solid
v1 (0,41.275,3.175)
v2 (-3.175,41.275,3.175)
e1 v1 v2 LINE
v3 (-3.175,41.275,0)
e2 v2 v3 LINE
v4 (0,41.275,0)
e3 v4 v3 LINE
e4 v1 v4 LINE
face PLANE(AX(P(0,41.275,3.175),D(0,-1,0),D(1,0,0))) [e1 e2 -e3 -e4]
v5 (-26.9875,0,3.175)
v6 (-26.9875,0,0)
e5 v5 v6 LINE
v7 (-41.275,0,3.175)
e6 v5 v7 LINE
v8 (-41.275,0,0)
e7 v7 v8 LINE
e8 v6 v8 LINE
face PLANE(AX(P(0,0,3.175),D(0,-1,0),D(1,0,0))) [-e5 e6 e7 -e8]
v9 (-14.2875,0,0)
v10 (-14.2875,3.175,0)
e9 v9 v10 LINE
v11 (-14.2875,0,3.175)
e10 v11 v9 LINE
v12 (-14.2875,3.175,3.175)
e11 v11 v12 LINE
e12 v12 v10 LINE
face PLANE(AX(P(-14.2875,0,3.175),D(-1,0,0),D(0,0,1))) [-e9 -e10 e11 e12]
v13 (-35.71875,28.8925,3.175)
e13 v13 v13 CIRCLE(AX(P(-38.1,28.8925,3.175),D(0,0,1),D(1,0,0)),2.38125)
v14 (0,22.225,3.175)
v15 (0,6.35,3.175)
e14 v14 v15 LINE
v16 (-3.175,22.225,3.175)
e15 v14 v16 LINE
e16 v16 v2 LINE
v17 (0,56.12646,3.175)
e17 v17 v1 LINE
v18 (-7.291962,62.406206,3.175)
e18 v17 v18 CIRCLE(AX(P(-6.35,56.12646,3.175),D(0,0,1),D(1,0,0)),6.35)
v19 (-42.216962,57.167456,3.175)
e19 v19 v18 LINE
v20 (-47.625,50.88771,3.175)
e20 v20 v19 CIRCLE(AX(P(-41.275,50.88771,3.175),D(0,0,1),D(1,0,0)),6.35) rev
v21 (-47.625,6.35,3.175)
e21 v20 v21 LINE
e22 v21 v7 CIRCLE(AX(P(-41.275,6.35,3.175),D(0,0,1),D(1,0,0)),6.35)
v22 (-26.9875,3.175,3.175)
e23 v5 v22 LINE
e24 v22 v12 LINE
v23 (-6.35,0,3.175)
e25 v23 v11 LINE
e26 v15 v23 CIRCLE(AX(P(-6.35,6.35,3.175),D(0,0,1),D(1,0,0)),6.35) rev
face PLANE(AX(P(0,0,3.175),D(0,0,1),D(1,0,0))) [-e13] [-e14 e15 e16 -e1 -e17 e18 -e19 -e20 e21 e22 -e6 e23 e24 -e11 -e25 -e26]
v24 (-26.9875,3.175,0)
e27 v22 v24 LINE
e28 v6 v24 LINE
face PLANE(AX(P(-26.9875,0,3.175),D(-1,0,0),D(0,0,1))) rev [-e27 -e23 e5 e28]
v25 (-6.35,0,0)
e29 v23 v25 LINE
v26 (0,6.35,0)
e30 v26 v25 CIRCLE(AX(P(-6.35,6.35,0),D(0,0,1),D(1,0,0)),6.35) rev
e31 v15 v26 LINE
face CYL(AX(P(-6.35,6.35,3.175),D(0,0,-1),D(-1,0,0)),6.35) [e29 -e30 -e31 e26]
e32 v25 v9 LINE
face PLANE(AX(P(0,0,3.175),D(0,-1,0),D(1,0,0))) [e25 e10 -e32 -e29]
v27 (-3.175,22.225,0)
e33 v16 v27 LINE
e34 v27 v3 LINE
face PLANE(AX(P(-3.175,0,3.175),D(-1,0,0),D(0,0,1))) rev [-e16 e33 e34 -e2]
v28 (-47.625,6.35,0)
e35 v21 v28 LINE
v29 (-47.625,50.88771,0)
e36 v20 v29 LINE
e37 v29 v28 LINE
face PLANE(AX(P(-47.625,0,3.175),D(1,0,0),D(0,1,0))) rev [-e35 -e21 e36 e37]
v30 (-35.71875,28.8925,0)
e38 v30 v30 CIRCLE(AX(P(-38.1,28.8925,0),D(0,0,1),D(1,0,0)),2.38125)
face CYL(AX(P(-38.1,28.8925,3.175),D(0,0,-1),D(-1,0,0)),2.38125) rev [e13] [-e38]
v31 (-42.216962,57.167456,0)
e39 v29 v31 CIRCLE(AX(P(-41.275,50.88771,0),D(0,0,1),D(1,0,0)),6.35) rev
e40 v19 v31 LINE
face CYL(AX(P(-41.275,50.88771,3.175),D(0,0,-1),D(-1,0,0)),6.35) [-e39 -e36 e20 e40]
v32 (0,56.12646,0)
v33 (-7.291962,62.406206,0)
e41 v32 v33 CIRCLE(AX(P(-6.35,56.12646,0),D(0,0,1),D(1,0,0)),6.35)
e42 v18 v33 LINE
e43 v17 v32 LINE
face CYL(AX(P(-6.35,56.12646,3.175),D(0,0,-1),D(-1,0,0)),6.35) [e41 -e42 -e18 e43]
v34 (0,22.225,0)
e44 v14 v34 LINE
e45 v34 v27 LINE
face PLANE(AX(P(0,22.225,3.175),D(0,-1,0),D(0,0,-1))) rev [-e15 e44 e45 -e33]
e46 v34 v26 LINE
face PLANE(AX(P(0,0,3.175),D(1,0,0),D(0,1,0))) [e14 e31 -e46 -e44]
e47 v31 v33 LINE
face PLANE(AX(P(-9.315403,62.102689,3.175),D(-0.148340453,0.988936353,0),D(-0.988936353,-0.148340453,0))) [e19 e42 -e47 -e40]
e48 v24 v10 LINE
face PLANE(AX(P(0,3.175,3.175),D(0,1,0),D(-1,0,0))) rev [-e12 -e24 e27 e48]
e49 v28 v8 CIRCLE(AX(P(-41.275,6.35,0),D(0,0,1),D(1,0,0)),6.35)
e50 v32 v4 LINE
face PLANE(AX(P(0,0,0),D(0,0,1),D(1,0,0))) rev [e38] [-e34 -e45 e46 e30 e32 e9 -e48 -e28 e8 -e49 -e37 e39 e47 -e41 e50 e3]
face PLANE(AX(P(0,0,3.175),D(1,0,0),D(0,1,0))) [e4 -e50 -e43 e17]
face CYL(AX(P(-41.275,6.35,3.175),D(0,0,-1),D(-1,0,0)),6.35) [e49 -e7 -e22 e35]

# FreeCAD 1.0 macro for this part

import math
import FreeCAD as App
import Part
import Sketcher
Q = App.Units.Quantity

doc = App.newDocument("Part")
params = doc.addObject("Spreadsheet::Sheet", "Params")
for row, (alias, value) in enumerate([
    ("sketch1_radius", "0.25 in"),
    ("sketch1_width", "0.5 in"),
    ("sketch1_radius2", "0.09375 in"),
    ("sketch1_height", "0.75 in"),
    ("sketch1_width2", "0.5625 in"),
    ("pad1_length", "0.125 in"),
], start=1):
    params.set(f"A{row}", alias)
    params.set(f"B{row}", "=" + value)
    params.setAlias(f"B{row}", alias)

body = doc.addObject("PartDesign::Body", "Body")

sketch1 = body.newObject("Sketcher::SketchObject", "Sketch")
sketch1.AttachmentSupport = (doc.getObject("XY_Plane"), [""])
sketch1.MapMode = "FlatFace"
sketch1.addGeometry([
    Part.LineSegment(App.Vector(-38.1, 57.8, 0), App.Vector(-42.2, 57.2, 0)),
    Part.ArcOfCircle(Part.Circle(App.Vector(-41.3, 50.9, 0), App.Vector(0, 0, 1), 6.3), math.radians(99), math.radians(180)),
    Part.LineSegment(App.Vector(-47.6, 50.9, 0), App.Vector(-47.6, 6.3, 0)),
    Part.ArcOfCircle(Part.Circle(App.Vector(-41.3, 6.3, 0), App.Vector(0, 0, 1), 6.3), math.radians(180), math.radians(270)),
    Part.LineSegment(App.Vector(-41.3, 0, 0), App.Vector(-27, 0, 0)),
    Part.LineSegment(App.Vector(-27, 0, 0), App.Vector(-27, 3.2, 0)),
    Part.LineSegment(App.Vector(-27, 3.2, 0), App.Vector(-14.3, 3.2, 0)),
    Part.LineSegment(App.Vector(-14.3, 3.2, 0), App.Vector(-14.3, 0, 0)),
    Part.LineSegment(App.Vector(-14.3, 0, 0), App.Vector(-6.3, 0, 0)),
    Part.ArcOfCircle(Part.Circle(App.Vector(-6.3, 6.3, 0), App.Vector(0, 0, 1), 6.3), math.radians(-90), math.radians(0)),
    Part.LineSegment(App.Vector(0, 6.3, 0), App.Vector(0, 22.2, 0)),
    Part.LineSegment(App.Vector(0, 22.2, 0), App.Vector(-3.2, 22.2, 0)),
    Part.LineSegment(App.Vector(-3.2, 22.2, 0), App.Vector(-3.2, 41.3, 0)),
    Part.LineSegment(App.Vector(-3.2, 41.3, 0), App.Vector(0, 41.3, 0)),
    Part.LineSegment(App.Vector(0, 41.3, 0), App.Vector(0, 56.1, 0)),
    Part.ArcOfCircle(Part.Circle(App.Vector(-6.3, 56.1, 0), App.Vector(0, 0, 1), 6.3), math.radians(0), math.radians(99)),
    Part.LineSegment(App.Vector(-7.3, 62.4, 0), App.Vector(-38.1, 57.8, 0)),
    Part.ArcOfCircle(Part.Circle(App.Vector(-38.1, 28.9, 0), App.Vector(0, 0, 1), 2.4), math.radians(90), math.radians(270)),
    Part.ArcOfCircle(Part.Circle(App.Vector(-38.1, 28.9, 0), App.Vector(0, 0, 1), 2.4), math.radians(0), math.radians(90)),
    Part.ArcOfCircle(Part.Circle(App.Vector(-38.1, 28.9, 0), App.Vector(0, 0, 1), 2.4), math.radians(-90), math.radians(0)),
], False)
sketch1.addConstraint([
    Sketcher.Constraint("Tangent", 0, 2, 1, 1),
    Sketcher.Constraint("Tangent", 1, 2, 2, 1),
    Sketcher.Constraint("Tangent", 2, 2, 3, 1),
    Sketcher.Constraint("Tangent", 3, 2, 4, 1),
    Sketcher.Constraint("Coincident", 4, 2, 5, 1),
    Sketcher.Constraint("Coincident", 5, 2, 6, 1),
    Sketcher.Constraint("Coincident", 6, 2, 7, 1),
    Sketcher.Constraint("Coincident", 7, 2, 8, 1),
    Sketcher.Constraint("Tangent", 8, 2, 9, 1),
    Sketcher.Constraint("Tangent", 9, 2, 10, 1),
    Sketcher.Constraint("Coincident", 10, 2, 11, 1),
    Sketcher.Constraint("Coincident", 11, 2, 12, 1),
    Sketcher.Constraint("Coincident", 12, 2, 13, 1),
    Sketcher.Constraint("Coincident", 13, 2, 14, 1),
    Sketcher.Constraint("Tangent", 14, 2, 15, 1),
    Sketcher.Constraint("Tangent", 15, 2, 16, 1),
    Sketcher.Constraint("Coincident", 16, 2, 0, 1),
    Sketcher.Constraint("Tangent", 17, 1, 18, 2),
    Sketcher.Constraint("Tangent", 18, 1, 19, 2),
    Sketcher.Constraint("Tangent", 19, 1, 17, 2),
    Sketcher.Constraint("Vertical", 2),
    Sketcher.Constraint("Horizontal", 4),
    Sketcher.Constraint("Vertical", 5),
    Sketcher.Constraint("Horizontal", 6),
    Sketcher.Constraint("Vertical", 7),
    Sketcher.Constraint("Horizontal", 8),
    Sketcher.Constraint("Vertical", 10),
    Sketcher.Constraint("Horizontal", 11),
    Sketcher.Constraint("Vertical", 12),
    Sketcher.Constraint("Horizontal", 13),
    Sketcher.Constraint("Vertical", 14),
    Sketcher.Constraint("Equal", 1, 3),
    Sketcher.Constraint("Equal", 3, 9),
    Sketcher.Constraint("Equal", 9, 15),
    Sketcher.Constraint("PointOnObject", 3, 2, -1),
    Sketcher.Constraint("PointOnObject", 7, 2, -1),
    Sketcher.Constraint("PointOnObject", 9, 2, -2),
    Sketcher.Constraint("PointOnObject", 13, 2, -2),
    Sketcher.Constraint("Parallel", 0, 16),
    Sketcher.Constraint("Horizontal", 19, 3, 18, 1),
    Sketcher.Constraint("Vertical", 19, 3, 16, 2),
    Sketcher.Constraint("Vertical", 16, 2, 17, 1),
    Sketcher.Constraint("Vertical", 17, 1, 19, 1),
    Sketcher.Constraint("Equal", 13, 5),
    Sketcher.Constraint("Radius", 1, Q("0.25 in")),
    Sketcher.Constraint("DistanceX", 6, 1, 6, 2, Q("0.5 in")),
    Sketcher.Constraint("Radius", 17, Q("0.09375 in")),
    Sketcher.Constraint("DistanceY", 12, 1, 12, 2, Q("0.75 in")),
    Sketcher.Constraint("DistanceX", 17, 3, -1, 1, Q("1.5 in")),
    Sketcher.Constraint("DistanceX", 4, 1, 4, 2, Q("0.5625 in")),
    Sketcher.Constraint("DistanceX", 8, 1, 8, 2, Q("0.3125 in")),
    Sketcher.Constraint("DistanceX", 11, 2, 11, 1, Q("0.125 in")),
    Sketcher.Constraint("DistanceY", 10, 1, 10, 2, Q("0.625 in")),
    Sketcher.Constraint("DistanceY", -1, 1, 16, 2, Q("2.275 in")),
    Sketcher.Constraint("DistanceY", -1, 1, 17, 3, Q("1.1375 in")),
    Sketcher.Constraint("Distance", 16, Q("31.152701 mm")),
])
sketch1.setExpression("Constraints[44]", "Params.sketch1_radius")
sketch1.setExpression("Constraints[45]", "Params.sketch1_width")
sketch1.setExpression("Constraints[46]", "Params.sketch1_radius2")
sketch1.setExpression("Constraints[47]", "Params.sketch1_height")
sketch1.setExpression("Constraints[49]", "Params.sketch1_width2")
pad1 = body.newObject("PartDesign::Pad", "Pad")
pad1.Profile = sketch1
pad1.setExpression("Length", "Params.pad1_length")

doc.recompute()
